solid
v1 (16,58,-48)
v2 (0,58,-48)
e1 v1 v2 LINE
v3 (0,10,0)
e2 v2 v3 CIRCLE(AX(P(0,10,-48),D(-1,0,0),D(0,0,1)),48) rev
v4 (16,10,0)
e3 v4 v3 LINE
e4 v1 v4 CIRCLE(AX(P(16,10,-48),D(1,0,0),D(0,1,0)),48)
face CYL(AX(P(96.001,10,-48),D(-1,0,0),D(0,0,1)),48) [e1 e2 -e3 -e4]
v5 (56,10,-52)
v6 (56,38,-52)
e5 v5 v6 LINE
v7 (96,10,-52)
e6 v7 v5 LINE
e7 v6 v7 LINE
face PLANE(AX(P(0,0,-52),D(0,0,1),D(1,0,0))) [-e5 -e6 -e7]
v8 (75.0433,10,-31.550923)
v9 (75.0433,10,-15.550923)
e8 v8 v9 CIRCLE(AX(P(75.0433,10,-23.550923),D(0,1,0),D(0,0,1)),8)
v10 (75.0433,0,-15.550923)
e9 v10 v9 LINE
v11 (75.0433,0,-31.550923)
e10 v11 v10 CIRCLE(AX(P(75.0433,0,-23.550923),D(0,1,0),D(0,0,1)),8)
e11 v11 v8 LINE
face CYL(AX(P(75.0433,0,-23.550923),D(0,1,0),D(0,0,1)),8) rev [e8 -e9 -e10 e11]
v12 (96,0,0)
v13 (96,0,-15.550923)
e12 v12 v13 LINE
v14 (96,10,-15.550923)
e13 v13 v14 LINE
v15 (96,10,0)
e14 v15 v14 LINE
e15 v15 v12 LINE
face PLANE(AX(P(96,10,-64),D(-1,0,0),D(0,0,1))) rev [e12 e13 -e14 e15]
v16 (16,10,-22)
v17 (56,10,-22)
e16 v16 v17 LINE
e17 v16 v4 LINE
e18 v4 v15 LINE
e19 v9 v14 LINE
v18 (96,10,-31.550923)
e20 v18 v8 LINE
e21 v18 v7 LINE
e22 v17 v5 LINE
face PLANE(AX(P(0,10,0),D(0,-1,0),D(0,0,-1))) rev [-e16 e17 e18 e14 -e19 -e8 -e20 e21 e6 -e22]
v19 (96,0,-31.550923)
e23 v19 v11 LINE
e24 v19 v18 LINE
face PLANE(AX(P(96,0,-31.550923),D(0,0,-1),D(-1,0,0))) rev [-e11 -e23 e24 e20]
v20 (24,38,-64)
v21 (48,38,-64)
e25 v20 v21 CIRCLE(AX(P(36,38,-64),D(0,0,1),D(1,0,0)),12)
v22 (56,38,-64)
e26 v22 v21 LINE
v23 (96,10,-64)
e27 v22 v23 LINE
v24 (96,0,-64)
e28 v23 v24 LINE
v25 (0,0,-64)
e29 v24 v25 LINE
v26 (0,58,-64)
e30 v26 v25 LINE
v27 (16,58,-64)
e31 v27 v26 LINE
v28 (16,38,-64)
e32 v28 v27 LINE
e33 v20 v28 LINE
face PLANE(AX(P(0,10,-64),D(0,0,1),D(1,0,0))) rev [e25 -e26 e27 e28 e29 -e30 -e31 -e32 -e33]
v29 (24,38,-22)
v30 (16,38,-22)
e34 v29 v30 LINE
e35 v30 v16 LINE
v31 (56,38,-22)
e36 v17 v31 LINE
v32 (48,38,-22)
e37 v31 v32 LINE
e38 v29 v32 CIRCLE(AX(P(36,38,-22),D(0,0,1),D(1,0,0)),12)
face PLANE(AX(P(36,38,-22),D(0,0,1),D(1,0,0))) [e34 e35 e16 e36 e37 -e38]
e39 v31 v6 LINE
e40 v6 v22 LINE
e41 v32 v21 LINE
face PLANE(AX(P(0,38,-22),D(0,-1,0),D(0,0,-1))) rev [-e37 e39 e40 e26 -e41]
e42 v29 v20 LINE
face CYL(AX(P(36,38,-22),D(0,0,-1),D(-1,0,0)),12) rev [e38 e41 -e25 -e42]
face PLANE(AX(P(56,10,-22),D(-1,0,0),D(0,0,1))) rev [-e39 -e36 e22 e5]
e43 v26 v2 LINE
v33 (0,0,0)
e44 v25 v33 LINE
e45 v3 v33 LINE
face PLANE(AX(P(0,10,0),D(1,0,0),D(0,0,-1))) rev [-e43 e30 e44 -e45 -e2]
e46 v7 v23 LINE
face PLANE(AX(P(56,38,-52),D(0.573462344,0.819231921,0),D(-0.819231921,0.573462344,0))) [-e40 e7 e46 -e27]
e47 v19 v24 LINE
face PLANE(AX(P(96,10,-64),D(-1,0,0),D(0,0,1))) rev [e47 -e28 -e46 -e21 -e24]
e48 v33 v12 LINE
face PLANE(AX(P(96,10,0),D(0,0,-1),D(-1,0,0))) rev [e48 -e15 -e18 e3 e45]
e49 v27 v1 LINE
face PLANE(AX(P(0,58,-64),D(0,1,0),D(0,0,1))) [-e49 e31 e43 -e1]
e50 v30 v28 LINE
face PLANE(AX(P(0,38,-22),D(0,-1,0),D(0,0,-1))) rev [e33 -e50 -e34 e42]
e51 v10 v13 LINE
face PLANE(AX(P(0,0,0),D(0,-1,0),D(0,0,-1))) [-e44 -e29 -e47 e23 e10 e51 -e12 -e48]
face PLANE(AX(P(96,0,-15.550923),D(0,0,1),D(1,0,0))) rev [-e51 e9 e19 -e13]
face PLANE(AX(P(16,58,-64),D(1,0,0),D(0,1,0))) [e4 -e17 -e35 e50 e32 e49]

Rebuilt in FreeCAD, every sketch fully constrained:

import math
import FreeCAD as App
import Part
import Sketcher

V = App.Vector
Q = App.Units.Quantity


def add_polygon(sketch, points):
    """Adds a closed chain of lines whose ends are joined by coincident constraints."""
    first, n = sketch.GeometryCount, len(points)
    for a, b in zip(points, points[1:] + points[:1]):
        sketch.addGeometry(Part.LineSegment(App.Vector(*a, 0), App.Vector(*b, 0)), False)
    for i in range(n):
        sketch.addConstraint(Sketcher.Constraint("Coincident", first + i, 2, first + (i + 1) % n, 1))

doc = App.newDocument("Part")
body = doc.addObject("PartDesign::Body", "Body")

# Sketch on XZ plane
sketch1 = doc.addObject("Sketcher::SketchObject", "Sketch")
body.addObject(sketch1)
sketch1.AttachmentSupport = (doc.XZ_Plane, [""])
sketch1.MapMode = "FlatFace"
add_polygon(sketch1, [(0, -64), (0, 0), (96, 0), (96, -64)])  # lines 0-3
sketch1.addConstraint([
    Sketcher.Constraint("Vertical", 0),
    Sketcher.Constraint("Horizontal", 1),
    Sketcher.Constraint("Vertical", 2),
    Sketcher.Constraint("Horizontal", 3),
    Sketcher.Constraint("Coincident", 0, 2, -1, 1),
    Sketcher.Constraint("DistanceX", 1, 1, 1, 2, Q("96 mm")),
    Sketcher.Constraint("DistanceY", 0, 1, 0, 2, Q("64 mm")),
])
pad1 = doc.addObject("PartDesign::Pad", "Pad")
body.addObject(pad1)
pad1.Profile = sketch1
pad1.Length = 10
pad1.Reversed = True

# Sketch on XZ plane
sketch2 = doc.addObject("Sketcher::SketchObject", "Sketch001")
body.addObject(sketch2)
sketch2.AttachmentSupport = (doc.XZ_Plane, [""])
sketch2.MapMode = "FlatFace"
sketch2.AttachmentOffset = App.Placement(V(0, 0, -10), App.Rotation())
sketch2.addGeometry([
    Part.LineSegment(V(96, -16, 0), V(96, -32, 0)),
    Part.LineSegment(V(96, -32, 0), V(75, -32, 0)),
    Part.ArcOfCircle(Part.Circle(V(75, -24, 0), V(0, 0, 1), 8), math.radians(90), math.radians(270)),
    Part.LineSegment(V(75, -16, 0), V(96, -16, 0)),
], False)
sketch2.addConstraint([
    Sketcher.Constraint("Coincident", 0, 2, 1, 1),
    Sketcher.Constraint("Tangent", 1, 2, 2, 2),
    Sketcher.Constraint("Tangent", 2, 1, 3, 1),
    Sketcher.Constraint("Coincident", 3, 2, 0, 1),
    Sketcher.Constraint("Vertical", 0),
    Sketcher.Constraint("Horizontal", 1),
    Sketcher.Constraint("Horizontal", 3),
    Sketcher.Constraint("Radius", 2, Q("8 mm")),
    Sketcher.Constraint("DistanceX", -1, 1, 0, 2, Q("96 mm")),
    Sketcher.Constraint("DistanceX", 1, 2, 1, 1, Q("20.9567 mm")),
    Sketcher.Constraint("DistanceY", 2, 3, -1, 1, Q("23.550923 mm")),
])
pocket1 = doc.addObject("PartDesign::Pocket", "Pocket")
body.addObject(pocket1)
pocket1.Profile = sketch2
pocket1.Length = 10
pocket1.Reversed = True

# Sketch on XY plane
sketch3 = doc.addObject("Sketcher::SketchObject", "Sketch002")
body.addObject(sketch3)
sketch3.AttachmentSupport = (doc.XY_Plane, [""])
sketch3.MapMode = "FlatFace"
add_polygon(sketch3, [(0, 58), (0, 10), (16, 10), (16, 58)])  # lines 0-3
sketch3.addConstraint([
    Sketcher.Constraint("Vertical", 0),
    Sketcher.Constraint("Horizontal", 1),
    Sketcher.Constraint("Vertical", 2),
    Sketcher.Constraint("Horizontal", 3),
    Sketcher.Constraint("PointOnObject", 0, 2, -2),
    Sketcher.Constraint("DistanceX", 1, 1, 1, 2, Q("16 mm")),
    Sketcher.Constraint("DistanceY", 0, 2, 0, 1, Q("48 mm")),
    Sketcher.Constraint("DistanceY", -1, 1, 0, 2, Q("10 mm")),
])
pad2 = doc.addObject("PartDesign::Pad", "Pad001")
body.addObject(pad2)
pad2.Profile = sketch3
pad2.Length = 64
pad2.Reversed = True

# Sketch on YZ plane
sketch4 = doc.addObject("Sketcher::SketchObject", "Sketch003")
body.addObject(sketch4)
sketch4.AttachmentSupport = (doc.YZ_Plane, [""])
sketch4.MapMode = "FlatFace"
sketch4.addGeometry([
    Part.LineSegment(V(58, 0, 0), V(10, 0, 0)),
    Part.ArcOfCircle(Part.Circle(V(10, -48, 0), V(0, 0, 1), 48), math.radians(0), math.radians(90)),
    Part.LineSegment(V(58, -48, 0), V(58, 0, 0)),
], False)
sketch4.addConstraint([
    Sketcher.Constraint("Tangent", 0, 2, 1, 2),
    Sketcher.Constraint("Tangent", 1, 1, 2, 1),
    Sketcher.Constraint("Coincident", 2, 2, 0, 1),
    Sketcher.Constraint("Horizontal", 0),
    Sketcher.Constraint("Vertical", 2),
    Sketcher.Constraint("PointOnObject", 0, 2, -1),
    Sketcher.Constraint("Radius", 1, Q("48 mm")),
    Sketcher.Constraint("DistanceX", -1, 1, 1, 3, Q("10 mm")),
])
pocket2 = doc.addObject("PartDesign::Pocket", "Pocket001")
body.addObject(pocket2)
pocket2.Profile = sketch4
pocket2.Type = "UpToFirst"
pocket2.Reversed = True

# Sketch on YZ plane
sketch5 = doc.addObject("Sketcher::SketchObject", "Sketch004")
body.addObject(sketch5)
sketch5.AttachmentSupport = (doc.YZ_Plane, [""])
sketch5.MapMode = "FlatFace"
sketch5.addGeometry([
    Part.LineSegment(V(58, 0, 0), V(10, 0, 0)),
    Part.ArcOfCircle(Part.Circle(V(10, -48, 0), V(0, 0, 1), 48), math.radians(0), math.radians(90)),
    Part.LineSegment(V(58, -48, 0), V(58, 0, 0)),
], False)
sketch5.addConstraint([
    Sketcher.Constraint("Tangent", 0, 2, 1, 2),
    Sketcher.Constraint("Tangent", 1, 1, 2, 1),
    Sketcher.Constraint("Coincident", 2, 2, 0, 1),
    Sketcher.Constraint("Horizontal", 0),
    Sketcher.Constraint("Vertical", 2),
    Sketcher.Constraint("PointOnObject", 0, 2, -1),
    Sketcher.Constraint("Radius", 1, Q("48 mm")),
    Sketcher.Constraint("DistanceX", -1, 1, 1, 3, Q("10 mm")),
])
pocket3 = doc.addObject("PartDesign::Pocket", "Pocket002")
body.addObject(pocket3)
pocket3.Profile = sketch5
pocket3.Length = 130.135588

# Sketch on XY plane
sketch6 = doc.addObject("Sketcher::SketchObject", "Sketch005")
body.addObject(sketch6)
sketch6.AttachmentSupport = (doc.XY_Plane, [""])
sketch6.MapMode = "FlatFace"
sketch6.AttachmentOffset = App.Placement(V(0, 0, -64), App.Rotation())
sketch6.addGeometry([
    Part.LineSegment(V(16, 38, 0), V(16, 10, 0)),  # 0
    Part.LineSegment(V(16, 10, 0), V(56, 10, 0)),  # 1
    Part.LineSegment(V(56, 10, 0), V(56, 38, 0)),  # 2
    Part.LineSegment(V(56, 38, 0), V(48, 38, 0)),  # 3
    Part.ArcOfCircle(Part.Circle(V(36, 38, 0), V(0, 0, 1), 12), math.radians(180), math.radians(360)),  # 4
    Part.LineSegment(V(24, 38, 0), V(16, 38, 0)),  # 5
], False)
sketch6.addConstraint([
    Sketcher.Constraint("Coincident", 0, 2, 1, 1),
    Sketcher.Constraint("Coincident", 1, 2, 2, 1),
    Sketcher.Constraint("Coincident", 2, 2, 3, 1),
    Sketcher.Constraint("Coincident", 3, 2, 4, 2),
    Sketcher.Constraint("Coincident", 4, 1, 5, 1),
    Sketcher.Constraint("Coincident", 5, 2, 0, 1),
    Sketcher.Constraint("Vertical", 0),
    Sketcher.Constraint("Horizontal", 1),
    Sketcher.Constraint("Vertical", 2),
    Sketcher.Constraint("Horizontal", 3),
    Sketcher.Constraint("Horizontal", 5),
    Sketcher.Constraint("Horizontal", 4, 3, 2, 2),
    Sketcher.Constraint("Horizontal", 3, 2, 4, 1),
    Sketcher.Constraint("Equal", 3, 5),
    Sketcher.Constraint("Radius", 4, Q("12 mm")),
    Sketcher.Constraint("DistanceX", 1, 1, 1, 2, Q("40 mm")),
    Sketcher.Constraint("DistanceY", 0, 2, 0, 1, Q("28 mm")),
    Sketcher.Constraint("DistanceX", -1, 1, 4, 3, Q("36 mm")),
    Sketcher.Constraint("DistanceY", -1, 1, 4, 3, Q("38 mm")),
])
pad3 = doc.addObject("PartDesign::Pad", "Pad002")
body.addObject(pad3)
pad3.Profile = sketch6
pad3.Length = 42

# Sketch on XY plane
sketch7 = doc.addObject("Sketcher::SketchObject", "Sketch006")
body.addObject(sketch7)
sketch7.AttachmentSupport = (doc.XY_Plane, [""])
sketch7.MapMode = "FlatFace"
sketch7.AttachmentOffset = App.Placement(V(0, 0, -64), App.Rotation())
add_polygon(sketch7, [(56, 38), (96, 10), (56, 10)])  # lines 0-2
sketch7.addConstraint([
    Sketcher.Constraint("Horizontal", 1),
    Sketcher.Constraint("Vertical", 2),
    Sketcher.Constraint("DistanceX", 1, 2, 1, 1, Q("40 mm")),
    Sketcher.Constraint("DistanceY", 2, 1, 2, 2, Q("28 mm")),
    Sketcher.Constraint("DistanceX", -1, 1, 0, 2, Q("96 mm")),
    Sketcher.Constraint("DistanceY", -1, 1, 0, 2, Q("10 mm")),
])
pad4 = doc.addObject("PartDesign::Pad", "Pad003")
body.addObject(pad4)
pad4.Profile = sketch7
pad4.Length = 12

doc.recompute()
